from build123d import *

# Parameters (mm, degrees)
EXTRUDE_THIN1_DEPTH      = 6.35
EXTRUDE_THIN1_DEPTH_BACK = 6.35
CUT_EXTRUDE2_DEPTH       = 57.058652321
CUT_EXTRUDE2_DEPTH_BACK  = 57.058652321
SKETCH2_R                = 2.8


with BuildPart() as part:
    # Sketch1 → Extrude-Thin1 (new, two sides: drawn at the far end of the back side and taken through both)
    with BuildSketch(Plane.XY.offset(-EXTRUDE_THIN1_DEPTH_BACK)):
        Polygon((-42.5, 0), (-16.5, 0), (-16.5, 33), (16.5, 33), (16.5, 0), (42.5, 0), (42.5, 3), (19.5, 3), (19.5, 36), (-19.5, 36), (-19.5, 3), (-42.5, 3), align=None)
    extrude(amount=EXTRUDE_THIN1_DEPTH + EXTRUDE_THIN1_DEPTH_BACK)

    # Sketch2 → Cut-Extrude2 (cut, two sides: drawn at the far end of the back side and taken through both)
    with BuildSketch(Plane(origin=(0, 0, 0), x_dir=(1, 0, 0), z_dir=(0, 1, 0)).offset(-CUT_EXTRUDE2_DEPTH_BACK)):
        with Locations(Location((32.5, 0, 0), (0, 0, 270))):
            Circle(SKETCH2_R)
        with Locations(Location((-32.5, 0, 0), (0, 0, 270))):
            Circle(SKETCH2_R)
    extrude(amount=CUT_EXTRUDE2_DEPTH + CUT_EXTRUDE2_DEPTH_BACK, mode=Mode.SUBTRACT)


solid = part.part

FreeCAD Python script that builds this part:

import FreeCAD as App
import Part
import Sketcher
Q = App.Units.Quantity


def add_polygon(sketch, points):
    """Adds a closed chain of lines whose ends are joined by coincident constraints."""
    first, n = sketch.GeometryCount, len(points)
    for a, b in zip(points, points[1:] + points[:1]):
        sketch.addGeometry(Part.LineSegment(App.Vector(*a, 0), App.Vector(*b, 0)), False)
    for i in range(n):
        sketch.addConstraint(Sketcher.Constraint("Coincident", first + i, 2, first + (i + 1) % n, 1))

doc = App.newDocument("Part")
params = doc.addObject("Spreadsheet::Sheet", "Params")
for row, (alias, value) in enumerate([
    ("sketch1_width", "26 mm"),
    ("sketch1_width2", "33 mm"),
    ("sketch1_width3", "23 mm"),
    ("sketch1_height", "3 mm"),
    ("pad1_length", "6.35 mm"),
    ("pad1_length2", "6.35 mm"),
    ("sketch2_diameter", "5.6 mm"),
], start=1):
    params.set(f"A{row}", alias)
    params.set(f"B{row}", "=" + value)
    params.setAlias(f"B{row}", alias)

body = doc.addObject("PartDesign::Body", "Body")

# Sketch on XY plane
sketch1 = body.newObject("Sketcher::SketchObject", "Sketch")
sketch1.AttachmentSupport = (doc.getObject("XY_Plane"), [""])
sketch1.MapMode = "FlatFace"
add_polygon(sketch1, [(-42.5, 0), (-16.5, 0), (-16.5, 33), (16.5, 33), (16.5, 0), (42.5, 0), (42.5, 3), (19.5, 3), (19.5, 36), (-19.5, 36), (-19.5, 3), (-42.5, 3)])  # lines 0-11
sketch1.addConstraint([
    Sketcher.Constraint("Horizontal", 0),
    Sketcher.Constraint("Vertical", 1),
    Sketcher.Constraint("Horizontal", 2),
    Sketcher.Constraint("Vertical", 3),
    Sketcher.Constraint("Horizontal", 4),
    Sketcher.Constraint("Vertical", 5),
    Sketcher.Constraint("Horizontal", 6),
    Sketcher.Constraint("Vertical", 7),
    Sketcher.Constraint("Horizontal", 8),
    Sketcher.Constraint("Vertical", 9),
    Sketcher.Constraint("Horizontal", 10),
    Sketcher.Constraint("Vertical", 11),
    Sketcher.Constraint("Symmetric", 0, 2, 3, 2, -1, 1),
    Sketcher.Constraint("Symmetric", 6, 2, 9, 2, -2),
    Sketcher.Constraint("Symmetric", 4, 2, 11, 2, -2),
    Sketcher.Constraint("Equal", 2, 1),
    Sketcher.Constraint("Equal", 3, 7),
    Sketcher.Constraint("DistanceX", 0, 1, 0, 2, Q("26 mm")),
    Sketcher.Constraint("DistanceX", 2, 1, 2, 2, Q("33 mm")),
    Sketcher.Constraint("DistanceX", 6, 2, 6, 1, Q("23 mm")),
    Sketcher.Constraint("DistanceY", 5, 1, 5, 2, Q("3 mm")),
])
sketch1.setExpression("Constraints[29]", "Params.sketch1_width")
sketch1.setExpression("Constraints[30]", "Params.sketch1_width2")
sketch1.setExpression("Constraints[31]", "Params.sketch1_width3")
sketch1.setExpression("Constraints[32]", "Params.sketch1_height")
pad1 = body.newObject("PartDesign::Pad", "Pad")
pad1.Profile = sketch1
pad1.Type = "TwoLengths"
pad1.setExpression("Length", "Params.pad1_length")
pad1.setExpression("Length2", "Params.pad1_length2")

# Sketch on XZ plane
sketch2 = body.newObject("Sketcher::SketchObject", "Sketch001")
sketch2.AttachmentSupport = (doc.getObject("XZ_Plane"), [""])
sketch2.MapMode = "FlatFace"
sketch2.addGeometry([
    Part.Circle(App.Vector(32.5, 0, 0), App.Vector(0, 0, 1), 2.8),
    Part.Circle(App.Vector(-32.5, 0, 0), App.Vector(0, 0, 1), 2.8),
], False)
sketch2.addConstraint([
    Sketcher.Constraint("Equal", 0, 1),
    Sketcher.Constraint("Symmetric", 0, 3, 1, 3, -1, 1),
    Sketcher.Constraint("PointOnObject", 0, 3, -1),
    Sketcher.Constraint("Diameter", 0, Q("5.6 mm")),
    Sketcher.Constraint("DistanceX", 1, 3, 0, 3, Q("65 mm")),
])
sketch2.setExpression("Constraints[3]", "Params.sketch2_diameter")
pocket1 = body.newObject("PartDesign::Pocket", "Pocket")
pocket1.Profile = sketch2
pocket1.Type = "ThroughAll"
pocket1.Midplane = True

doc.recompute()
